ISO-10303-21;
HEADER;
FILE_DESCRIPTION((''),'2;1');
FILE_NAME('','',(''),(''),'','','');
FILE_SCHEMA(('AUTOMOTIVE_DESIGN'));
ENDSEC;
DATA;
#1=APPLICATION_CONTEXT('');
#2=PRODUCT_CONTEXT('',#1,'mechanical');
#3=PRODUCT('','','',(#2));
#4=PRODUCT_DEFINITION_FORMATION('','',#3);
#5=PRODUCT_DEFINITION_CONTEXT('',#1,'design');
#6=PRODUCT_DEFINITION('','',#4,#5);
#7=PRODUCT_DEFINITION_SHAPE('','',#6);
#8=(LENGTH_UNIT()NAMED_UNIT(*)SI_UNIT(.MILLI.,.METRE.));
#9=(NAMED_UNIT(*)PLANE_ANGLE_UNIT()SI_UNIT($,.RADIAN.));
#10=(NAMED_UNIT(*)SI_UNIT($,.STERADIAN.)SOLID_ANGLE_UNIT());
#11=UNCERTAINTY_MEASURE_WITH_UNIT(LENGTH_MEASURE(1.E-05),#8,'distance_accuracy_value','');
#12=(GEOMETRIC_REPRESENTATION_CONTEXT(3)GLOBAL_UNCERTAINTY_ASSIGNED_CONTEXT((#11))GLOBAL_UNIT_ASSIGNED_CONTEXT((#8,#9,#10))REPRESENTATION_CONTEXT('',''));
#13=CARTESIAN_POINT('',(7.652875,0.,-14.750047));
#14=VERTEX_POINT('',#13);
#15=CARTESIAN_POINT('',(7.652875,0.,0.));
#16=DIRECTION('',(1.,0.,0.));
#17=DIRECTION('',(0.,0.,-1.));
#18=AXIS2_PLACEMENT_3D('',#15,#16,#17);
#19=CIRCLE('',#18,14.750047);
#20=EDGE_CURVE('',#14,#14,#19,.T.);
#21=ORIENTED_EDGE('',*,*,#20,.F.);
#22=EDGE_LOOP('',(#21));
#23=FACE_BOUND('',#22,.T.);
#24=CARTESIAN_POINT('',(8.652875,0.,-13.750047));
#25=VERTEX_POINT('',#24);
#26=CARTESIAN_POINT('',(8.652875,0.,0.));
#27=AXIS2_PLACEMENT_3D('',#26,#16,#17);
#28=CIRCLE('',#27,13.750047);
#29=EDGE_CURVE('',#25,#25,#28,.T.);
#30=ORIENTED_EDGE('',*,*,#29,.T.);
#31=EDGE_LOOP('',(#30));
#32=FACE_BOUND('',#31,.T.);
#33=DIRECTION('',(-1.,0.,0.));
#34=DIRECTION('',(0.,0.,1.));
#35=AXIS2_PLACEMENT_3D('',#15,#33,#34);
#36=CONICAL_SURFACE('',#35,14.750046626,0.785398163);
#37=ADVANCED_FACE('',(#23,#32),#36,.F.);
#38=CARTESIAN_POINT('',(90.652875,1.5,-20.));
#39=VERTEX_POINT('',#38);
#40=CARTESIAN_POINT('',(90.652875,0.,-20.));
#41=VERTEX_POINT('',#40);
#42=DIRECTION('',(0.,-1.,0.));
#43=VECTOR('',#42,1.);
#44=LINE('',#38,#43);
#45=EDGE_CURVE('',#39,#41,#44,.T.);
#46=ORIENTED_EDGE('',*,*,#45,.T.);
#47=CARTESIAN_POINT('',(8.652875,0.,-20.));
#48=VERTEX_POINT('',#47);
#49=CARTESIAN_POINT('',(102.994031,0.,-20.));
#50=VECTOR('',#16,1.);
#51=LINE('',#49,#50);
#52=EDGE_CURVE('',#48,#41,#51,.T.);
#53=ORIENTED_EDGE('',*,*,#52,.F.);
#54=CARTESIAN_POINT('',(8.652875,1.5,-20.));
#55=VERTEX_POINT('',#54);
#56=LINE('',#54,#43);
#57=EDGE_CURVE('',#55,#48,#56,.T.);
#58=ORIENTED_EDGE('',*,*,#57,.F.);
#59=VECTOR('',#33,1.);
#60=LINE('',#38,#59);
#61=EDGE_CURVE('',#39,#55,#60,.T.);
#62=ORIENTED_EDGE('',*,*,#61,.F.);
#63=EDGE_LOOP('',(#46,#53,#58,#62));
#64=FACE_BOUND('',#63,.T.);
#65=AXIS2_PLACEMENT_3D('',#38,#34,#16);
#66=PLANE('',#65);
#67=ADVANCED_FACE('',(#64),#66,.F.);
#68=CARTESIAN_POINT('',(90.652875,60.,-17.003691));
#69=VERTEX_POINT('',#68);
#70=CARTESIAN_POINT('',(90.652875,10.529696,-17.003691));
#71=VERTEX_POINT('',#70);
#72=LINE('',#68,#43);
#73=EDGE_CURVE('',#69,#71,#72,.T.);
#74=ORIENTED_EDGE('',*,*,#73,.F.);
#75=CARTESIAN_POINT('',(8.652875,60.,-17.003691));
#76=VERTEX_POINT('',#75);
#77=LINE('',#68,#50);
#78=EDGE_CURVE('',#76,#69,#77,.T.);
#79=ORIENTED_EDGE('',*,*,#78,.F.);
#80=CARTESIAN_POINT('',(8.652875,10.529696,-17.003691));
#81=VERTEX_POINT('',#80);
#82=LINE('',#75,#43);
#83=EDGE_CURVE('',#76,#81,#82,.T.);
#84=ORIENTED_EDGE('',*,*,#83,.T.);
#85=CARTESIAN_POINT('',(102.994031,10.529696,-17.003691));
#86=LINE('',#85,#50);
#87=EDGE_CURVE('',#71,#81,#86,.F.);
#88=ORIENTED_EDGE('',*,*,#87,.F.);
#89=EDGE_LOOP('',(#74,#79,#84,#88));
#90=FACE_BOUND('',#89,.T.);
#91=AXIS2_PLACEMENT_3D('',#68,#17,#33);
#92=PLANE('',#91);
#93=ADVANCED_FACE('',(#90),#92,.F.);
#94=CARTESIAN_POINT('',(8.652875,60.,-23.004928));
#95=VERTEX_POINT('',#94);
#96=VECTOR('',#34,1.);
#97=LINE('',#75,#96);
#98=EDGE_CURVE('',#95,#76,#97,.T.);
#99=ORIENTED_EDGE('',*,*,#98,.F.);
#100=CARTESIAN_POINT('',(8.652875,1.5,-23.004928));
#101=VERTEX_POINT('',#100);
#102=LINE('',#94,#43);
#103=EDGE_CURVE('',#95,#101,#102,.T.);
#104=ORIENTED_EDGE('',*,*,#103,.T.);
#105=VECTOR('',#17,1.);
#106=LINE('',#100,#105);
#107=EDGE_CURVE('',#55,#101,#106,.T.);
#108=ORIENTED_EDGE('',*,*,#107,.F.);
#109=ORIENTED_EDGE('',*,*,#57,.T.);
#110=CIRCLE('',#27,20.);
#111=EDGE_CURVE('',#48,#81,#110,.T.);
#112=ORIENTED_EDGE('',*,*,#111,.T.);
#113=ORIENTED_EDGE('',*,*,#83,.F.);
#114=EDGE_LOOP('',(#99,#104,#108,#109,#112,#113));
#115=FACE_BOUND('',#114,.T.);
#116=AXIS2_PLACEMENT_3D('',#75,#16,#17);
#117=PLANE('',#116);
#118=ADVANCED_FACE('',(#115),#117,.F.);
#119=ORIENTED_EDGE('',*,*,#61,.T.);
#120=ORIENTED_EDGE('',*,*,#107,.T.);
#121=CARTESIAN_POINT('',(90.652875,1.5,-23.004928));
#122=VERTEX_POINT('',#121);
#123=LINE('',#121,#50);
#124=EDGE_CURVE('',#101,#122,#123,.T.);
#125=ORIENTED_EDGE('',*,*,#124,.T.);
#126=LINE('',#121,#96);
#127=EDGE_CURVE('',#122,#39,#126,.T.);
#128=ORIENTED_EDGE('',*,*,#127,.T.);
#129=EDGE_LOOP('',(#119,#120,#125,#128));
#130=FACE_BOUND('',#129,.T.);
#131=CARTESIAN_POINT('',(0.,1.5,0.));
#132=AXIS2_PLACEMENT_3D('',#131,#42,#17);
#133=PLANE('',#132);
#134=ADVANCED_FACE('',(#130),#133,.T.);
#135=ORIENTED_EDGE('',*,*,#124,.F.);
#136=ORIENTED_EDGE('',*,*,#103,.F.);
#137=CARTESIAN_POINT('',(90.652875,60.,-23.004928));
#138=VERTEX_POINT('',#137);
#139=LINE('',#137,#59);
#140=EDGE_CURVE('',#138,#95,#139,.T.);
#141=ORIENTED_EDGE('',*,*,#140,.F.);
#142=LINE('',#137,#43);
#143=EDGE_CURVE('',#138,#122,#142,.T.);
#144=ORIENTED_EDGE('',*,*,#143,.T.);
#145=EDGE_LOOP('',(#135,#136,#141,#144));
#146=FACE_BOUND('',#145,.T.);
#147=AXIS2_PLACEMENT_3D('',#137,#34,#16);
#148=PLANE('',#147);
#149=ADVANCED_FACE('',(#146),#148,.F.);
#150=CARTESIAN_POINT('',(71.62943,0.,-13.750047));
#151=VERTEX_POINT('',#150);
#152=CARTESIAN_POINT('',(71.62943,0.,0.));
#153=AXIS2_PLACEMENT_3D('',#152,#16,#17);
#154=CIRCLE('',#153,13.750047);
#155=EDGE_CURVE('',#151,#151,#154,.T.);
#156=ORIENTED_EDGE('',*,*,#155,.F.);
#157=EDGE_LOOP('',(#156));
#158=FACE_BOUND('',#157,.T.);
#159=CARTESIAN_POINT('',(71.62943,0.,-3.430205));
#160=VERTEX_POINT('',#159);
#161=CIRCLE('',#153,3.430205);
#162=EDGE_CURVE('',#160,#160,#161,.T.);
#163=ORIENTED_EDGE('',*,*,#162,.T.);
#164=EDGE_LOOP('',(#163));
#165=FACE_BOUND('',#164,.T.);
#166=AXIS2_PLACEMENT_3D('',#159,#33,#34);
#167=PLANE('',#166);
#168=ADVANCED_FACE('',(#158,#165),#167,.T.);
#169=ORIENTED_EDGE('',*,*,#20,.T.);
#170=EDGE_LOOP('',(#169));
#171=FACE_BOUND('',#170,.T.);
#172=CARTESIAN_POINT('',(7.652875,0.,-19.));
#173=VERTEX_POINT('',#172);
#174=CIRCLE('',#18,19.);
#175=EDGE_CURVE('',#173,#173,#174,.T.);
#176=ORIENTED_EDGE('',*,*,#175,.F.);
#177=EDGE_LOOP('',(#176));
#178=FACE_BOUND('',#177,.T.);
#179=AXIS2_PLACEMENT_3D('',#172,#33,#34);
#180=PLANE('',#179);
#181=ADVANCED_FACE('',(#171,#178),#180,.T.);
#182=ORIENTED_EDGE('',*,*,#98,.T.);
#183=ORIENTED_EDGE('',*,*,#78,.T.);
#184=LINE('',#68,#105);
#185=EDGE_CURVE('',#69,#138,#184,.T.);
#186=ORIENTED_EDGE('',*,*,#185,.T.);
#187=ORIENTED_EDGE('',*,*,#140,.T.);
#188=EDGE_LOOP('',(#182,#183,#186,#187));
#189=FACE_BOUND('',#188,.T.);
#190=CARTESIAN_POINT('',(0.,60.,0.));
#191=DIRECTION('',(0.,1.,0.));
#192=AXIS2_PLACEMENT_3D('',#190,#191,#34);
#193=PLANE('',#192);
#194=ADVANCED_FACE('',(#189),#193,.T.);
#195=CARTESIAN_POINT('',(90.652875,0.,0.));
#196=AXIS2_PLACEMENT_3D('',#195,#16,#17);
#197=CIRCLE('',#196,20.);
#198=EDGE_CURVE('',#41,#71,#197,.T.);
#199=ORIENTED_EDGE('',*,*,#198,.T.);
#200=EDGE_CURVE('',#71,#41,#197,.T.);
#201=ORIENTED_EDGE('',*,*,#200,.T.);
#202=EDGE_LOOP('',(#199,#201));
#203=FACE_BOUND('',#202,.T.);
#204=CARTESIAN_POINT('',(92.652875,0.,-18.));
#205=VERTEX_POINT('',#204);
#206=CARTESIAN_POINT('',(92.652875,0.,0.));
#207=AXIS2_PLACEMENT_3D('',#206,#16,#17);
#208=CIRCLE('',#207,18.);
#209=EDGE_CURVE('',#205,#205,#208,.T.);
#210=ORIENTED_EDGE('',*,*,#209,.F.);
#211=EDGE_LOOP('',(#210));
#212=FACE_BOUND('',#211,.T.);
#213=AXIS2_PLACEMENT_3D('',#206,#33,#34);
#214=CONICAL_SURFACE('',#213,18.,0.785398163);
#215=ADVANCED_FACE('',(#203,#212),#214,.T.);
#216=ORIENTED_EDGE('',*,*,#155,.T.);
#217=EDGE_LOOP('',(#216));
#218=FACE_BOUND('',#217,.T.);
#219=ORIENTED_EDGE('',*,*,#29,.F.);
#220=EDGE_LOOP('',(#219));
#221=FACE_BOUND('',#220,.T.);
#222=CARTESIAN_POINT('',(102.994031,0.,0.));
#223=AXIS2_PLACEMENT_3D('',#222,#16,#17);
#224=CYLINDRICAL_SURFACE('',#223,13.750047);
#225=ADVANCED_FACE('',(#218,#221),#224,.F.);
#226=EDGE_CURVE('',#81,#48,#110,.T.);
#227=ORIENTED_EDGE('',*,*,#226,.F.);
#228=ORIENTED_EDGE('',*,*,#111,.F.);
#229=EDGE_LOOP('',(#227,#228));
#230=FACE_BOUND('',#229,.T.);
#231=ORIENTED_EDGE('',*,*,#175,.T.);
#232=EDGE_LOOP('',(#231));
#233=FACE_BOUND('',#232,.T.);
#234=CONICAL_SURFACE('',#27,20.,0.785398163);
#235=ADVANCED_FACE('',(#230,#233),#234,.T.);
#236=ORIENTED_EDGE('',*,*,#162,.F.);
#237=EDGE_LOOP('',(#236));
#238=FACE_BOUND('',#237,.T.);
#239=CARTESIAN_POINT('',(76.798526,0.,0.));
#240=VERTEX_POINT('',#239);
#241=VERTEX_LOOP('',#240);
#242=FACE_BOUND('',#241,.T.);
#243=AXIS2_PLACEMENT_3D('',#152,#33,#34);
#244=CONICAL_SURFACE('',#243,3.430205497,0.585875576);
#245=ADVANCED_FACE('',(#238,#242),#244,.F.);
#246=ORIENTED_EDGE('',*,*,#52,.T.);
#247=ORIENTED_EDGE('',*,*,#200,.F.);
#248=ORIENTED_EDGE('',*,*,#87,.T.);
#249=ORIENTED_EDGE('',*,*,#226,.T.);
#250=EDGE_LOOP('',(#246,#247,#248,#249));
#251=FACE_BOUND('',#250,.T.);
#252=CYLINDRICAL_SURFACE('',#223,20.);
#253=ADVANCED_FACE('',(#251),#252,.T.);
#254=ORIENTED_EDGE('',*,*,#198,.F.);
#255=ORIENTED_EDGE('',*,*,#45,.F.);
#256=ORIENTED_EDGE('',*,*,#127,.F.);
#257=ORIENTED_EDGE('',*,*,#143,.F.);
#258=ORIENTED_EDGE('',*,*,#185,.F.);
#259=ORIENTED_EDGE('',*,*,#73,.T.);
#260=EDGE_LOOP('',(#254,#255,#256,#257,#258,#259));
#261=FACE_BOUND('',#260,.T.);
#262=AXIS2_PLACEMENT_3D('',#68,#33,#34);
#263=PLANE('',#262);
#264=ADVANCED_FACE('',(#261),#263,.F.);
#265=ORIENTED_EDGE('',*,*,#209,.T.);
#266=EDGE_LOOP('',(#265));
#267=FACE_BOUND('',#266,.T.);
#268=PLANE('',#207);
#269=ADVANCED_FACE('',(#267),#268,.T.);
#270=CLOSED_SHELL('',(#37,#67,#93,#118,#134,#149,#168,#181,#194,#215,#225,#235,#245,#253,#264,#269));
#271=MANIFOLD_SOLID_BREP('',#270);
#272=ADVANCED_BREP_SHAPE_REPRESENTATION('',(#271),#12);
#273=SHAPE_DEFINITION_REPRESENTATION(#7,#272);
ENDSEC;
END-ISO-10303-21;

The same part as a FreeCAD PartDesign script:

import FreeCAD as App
import Part
import Sketcher
from FreeCAD import Vector
Q = App.Units.Quantity

doc = App.newDocument("Part")
params = doc.addObject("Spreadsheet::Sheet", "Params")
for row, (alias, value) in enumerate([
    ("sketch1_width", "82 mm"),
    ("sketch1_height", "18 mm"),
    ("revolution_angle", "360 deg"),
    ("sketch2_width", "82 mm"),
    ("pad1_length", "60 mm"),
    ("sketch3_width", "82 mm"),
    ("pocket1_length", "1.5 mm"),
], start=1):
    params.set(f"A{row}", alias)
    params.set(f"B{row}", "=" + value)
    params.setAlias(f"B{row}", alias)

body = doc.addObject("PartDesign::Body", "Body")

# Sketch on XZ plane
sketch1 = doc.addObject("Sketcher::SketchObject", "Sketch")
body.addObject(sketch1)
sketch1.AttachmentSupport = (doc.XZ_Plane, [""])
sketch1.MapMode = "FlatFace"
sketch1.addGeometry(Part.LineSegment(Vector(92.7, 0, 0), Vector(92.7, -18, 0)), False)
sketch1.addGeometry(Part.LineSegment(Vector(92.7, -18, 0), Vector(90.7, -20, 0)), False)
sketch1.addGeometry(Part.LineSegment(Vector(90.7, -20, 0), Vector(8.7, -20, 0)), False)
sketch1.addGeometry(Part.LineSegment(Vector(8.7, -20, 0), Vector(7.7, -19, 0)), False)
sketch1.addGeometry(Part.LineSegment(Vector(7.7, -19, 0), Vector(7.7, -14.8, 0)), False)
sketch1.addGeometry(Part.LineSegment(Vector(7.7, -14.8, 0), Vector(8.7, -13.8, 0)), False)
sketch1.addGeometry(Part.LineSegment(Vector(8.7, -13.8, 0), Vector(71.6, -13.8, 0)), False)
sketch1.addGeometry(Part.LineSegment(Vector(71.6, -13.8, 0), Vector(71.6, -3.4, 0)), False)
sketch1.addGeometry(Part.LineSegment(Vector(71.6, -3.4, 0), Vector(76.8, 0, 0)), False)
sketch1.addGeometry(Part.LineSegment(Vector(76.8, 0, 0), Vector(92.7, 0, 0)), False)
sketch1.addConstraint(Sketcher.Constraint("Coincident", 0, 2, 1, 1))
sketch1.addConstraint(Sketcher.Constraint("Coincident", 1, 2, 2, 1))
sketch1.addConstraint(Sketcher.Constraint("Coincident", 2, 2, 3, 1))
sketch1.addConstraint(Sketcher.Constraint("Coincident", 3, 2, 4, 1))
sketch1.addConstraint(Sketcher.Constraint("Coincident", 4, 2, 5, 1))
sketch1.addConstraint(Sketcher.Constraint("Coincident", 5, 2, 6, 1))
sketch1.addConstraint(Sketcher.Constraint("Coincident", 6, 2, 7, 1))
sketch1.addConstraint(Sketcher.Constraint("Coincident", 7, 2, 8, 1))
sketch1.addConstraint(Sketcher.Constraint("Coincident", 8, 2, 9, 1))
sketch1.addConstraint(Sketcher.Constraint("Coincident", 9, 2, 0, 1))
sketch1.addConstraint(Sketcher.Constraint("Vertical", 0))
sketch1.addConstraint(Sketcher.Constraint("Horizontal", 2))
sketch1.addConstraint(Sketcher.Constraint("Vertical", 4))
sketch1.addConstraint(Sketcher.Constraint("Horizontal", 6))
sketch1.addConstraint(Sketcher.Constraint("Vertical", 7))
sketch1.addConstraint(Sketcher.Constraint("Horizontal", 9))
sketch1.addConstraint(Sketcher.Constraint("PointOnObject", 8, 2, -1))
sketch1.addConstraint(Sketcher.Constraint("Perpendicular", 1, 3))
sketch1.addConstraint(Sketcher.Constraint("Perpendicular", 3, 5))
sketch1.addConstraint(Sketcher.Constraint("Vertical", 2, 2, 5, 2))
sketch1.addConstraint(Sketcher.Constraint("Equal", 3, 5))
sketch1.addConstraint(Sketcher.Constraint("DistanceX", 2, 2, 2, 1, Q("82 mm")))
sketch1.addConstraint(Sketcher.Constraint("DistanceY", 0, 2, 0, 1, Q("18 mm")))
sketch1.addConstraint(Sketcher.Constraint("DistanceY", 1, 2, -1, 1, Q("20 mm")))
sketch1.addConstraint(Sketcher.Constraint("DistanceY", 3, 2, -1, 1, Q("19 mm")))
sketch1.addConstraint(Sketcher.Constraint("Distance", 8, Q("6.203698 mm")))
sketch1.addConstraint(Sketcher.Constraint("DistanceX", 9, 1, 9, 2, Q("15.854348 mm")))
sketch1.addConstraint(Sketcher.Constraint("DistanceY", 7, 1, 7, 2, Q("10.319841 mm")))
sketch1.addConstraint(Sketcher.Constraint("DistanceX", 6, 1, 6, 2, Q("62.976555 mm")))
sketch1.addConstraint(Sketcher.Constraint("DistanceX", -1, 1, 6, 2, Q("71.62943 mm")))
sketch1.setExpression("Constraints[21]", "Params.sketch1_width")
sketch1.setExpression("Constraints[22]", "Params.sketch1_height")
revolution = doc.addObject("PartDesign::Revolution", "Revolution")
body.addObject(revolution)
revolution.Profile = sketch1
revolution.ReferenceAxis = (sketch1, ["H_Axis"])
revolution.setExpression("Angle", "Params.revolution_angle")

# Sketch on XZ plane
sketch2 = doc.addObject("Sketcher::SketchObject", "Sketch001")
body.addObject(sketch2)
sketch2.AttachmentSupport = (doc.XZ_Plane, [""])
sketch2.MapMode = "FlatFace"
sketch2.addGeometry(Part.LineSegment(Vector(9, -23, 0), Vector(9, -17, 0)), False)
sketch2.addGeometry(Part.LineSegment(Vector(9, -17, 0), Vector(91, -17, 0)), False)
sketch2.addGeometry(Part.LineSegment(Vector(91, -17, 0), Vector(91, -23, 0)), False)
sketch2.addGeometry(Part.LineSegment(Vector(91, -23, 0), Vector(9, -23, 0)), False)
sketch2.addConstraint(Sketcher.Constraint("Coincident", 0, 2, 1, 1))
sketch2.addConstraint(Sketcher.Constraint("Coincident", 1, 2, 2, 1))
sketch2.addConstraint(Sketcher.Constraint("Coincident", 2, 2, 3, 1))
sketch2.addConstraint(Sketcher.Constraint("Coincident", 3, 2, 0, 1))
sketch2.addConstraint(Sketcher.Constraint("Vertical", 0))
sketch2.addConstraint(Sketcher.Constraint("Horizontal", 1))
sketch2.addConstraint(Sketcher.Constraint("Vertical", 2))
sketch2.addConstraint(Sketcher.Constraint("Horizontal", 3))
sketch2.addConstraint(Sketcher.Constraint("DistanceX", 1, 1, 1, 2, Q("82 mm")))
sketch2.addConstraint(Sketcher.Constraint("DistanceY", 0, 1, 0, 2, Q("6.001237 mm")))
sketch2.addConstraint(Sketcher.Constraint("DistanceY", 0, 2, -1, 1, Q("17.003691 mm")))
sketch2.addConstraint(Sketcher.Constraint("DistanceX", -1, 1, 0, 2, Q("8.652875 mm")))
sketch2.setExpression("Constraints[8]", "Params.sketch2_width")
pad1 = doc.addObject("PartDesign::Pad", "Pad")
body.addObject(pad1)
pad1.Profile = sketch2
pad1.setExpression("Length", "Params.pad1_length")
pad1.Reversed = True

# Sketch on XZ plane
sketch3 = doc.addObject("Sketcher::SketchObject", "Sketch002")
body.addObject(sketch3)
sketch3.AttachmentSupport = (doc.XZ_Plane, [""])
sketch3.MapMode = "FlatFace"
sketch3.addGeometry(Part.LineSegment(Vector(8.7, -20, 0), Vector(8.7, -23, 0)), False)
sketch3.addGeometry(Part.LineSegment(Vector(8.7, -23, 0), Vector(90.7, -23, 0)), False)
sketch3.addGeometry(Part.LineSegment(Vector(90.7, -23, 0), Vector(90.7, -20, 0)), False)
sketch3.addGeometry(Part.LineSegment(Vector(90.7, -20, 0), Vector(8.7, -20, 0)), False)
sketch3.addConstraint(Sketcher.Constraint("Coincident", 0, 2, 1, 1))
sketch3.addConstraint(Sketcher.Constraint("Coincident", 1, 2, 2, 1))
sketch3.addConstraint(Sketcher.Constraint("Coincident", 2, 2, 3, 1))
sketch3.addConstraint(Sketcher.Constraint("Coincident", 3, 2, 0, 1))
sketch3.addConstraint(Sketcher.Constraint("Vertical", 0))
sketch3.addConstraint(Sketcher.Constraint("Horizontal", 1))
sketch3.addConstraint(Sketcher.Constraint("Vertical", 2))
sketch3.addConstraint(Sketcher.Constraint("Horizontal", 3))
sketch3.addConstraint(Sketcher.Constraint("DistanceX", 1, 1, 1, 2, Q("82 mm")))
sketch3.addConstraint(Sketcher.Constraint("DistanceY", 2, 2, -1, 1, Q("20 mm")))
sketch3.addConstraint(Sketcher.Constraint("DistanceY", 0, 2, 0, 1, Q("3.004928 mm")))
sketch3.addConstraint(Sketcher.Constraint("DistanceX", -1, 1, 0, 2, Q("8.652875 mm")))
sketch3.setExpression("Constraints[8]", "Params.sketch3_width")
pocket1 = doc.addObject("PartDesign::Pocket", "Pocket")
body.addObject(pocket1)
pocket1.Profile = sketch3
pocket1.setExpression("Length", "Params.pocket1_length")

doc.recompute()
